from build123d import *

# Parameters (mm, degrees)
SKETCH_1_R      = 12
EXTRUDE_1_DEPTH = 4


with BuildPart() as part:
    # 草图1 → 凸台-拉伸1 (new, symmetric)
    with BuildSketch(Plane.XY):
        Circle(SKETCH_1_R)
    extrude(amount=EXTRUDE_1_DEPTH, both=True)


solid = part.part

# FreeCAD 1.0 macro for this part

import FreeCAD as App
import Part
import Sketcher
from FreeCAD import Vector

doc = App.newDocument("Part")
params = doc.addObject("Spreadsheet::Sheet", "Params")
for row, (alias, value) in enumerate([
    ("sketch1_diameter", "24 mm"),
    ("pad1_length", "8 mm"),
], start=1):
    params.set(f"A{row}", alias)
    params.set(f"B{row}", "=" + value)
    params.setAlias(f"B{row}", alias)

body = doc.addObject("PartDesign::Body", "Body")

sketch1 = doc.addObject("Sketcher::SketchObject", "Sketch")
body.addObject(sketch1)
sketch1.AttachmentSupport = (doc.XY_Plane, [""])
sketch1.MapMode = "FlatFace"
sketch1.addGeometry(Part.Circle(Vector(0, 0, 0), Vector(0, 0, 1), 12), False)
sketch1.addConstraint([
    Sketcher.Constraint("Coincident", 0, 3, -1, 1),
    Sketcher.Constraint("Diameter", 0, 24.0),
])
sketch1.setExpression("Constraints[1]", "Params.sketch1_diameter")
pad1 = doc.addObject("PartDesign::Pad", "Pad")
body.addObject(pad1)
pad1.Profile = sketch1
pad1.setExpression("Length", "Params.pad1_length")
pad1.Midplane = True

doc.recompute()
